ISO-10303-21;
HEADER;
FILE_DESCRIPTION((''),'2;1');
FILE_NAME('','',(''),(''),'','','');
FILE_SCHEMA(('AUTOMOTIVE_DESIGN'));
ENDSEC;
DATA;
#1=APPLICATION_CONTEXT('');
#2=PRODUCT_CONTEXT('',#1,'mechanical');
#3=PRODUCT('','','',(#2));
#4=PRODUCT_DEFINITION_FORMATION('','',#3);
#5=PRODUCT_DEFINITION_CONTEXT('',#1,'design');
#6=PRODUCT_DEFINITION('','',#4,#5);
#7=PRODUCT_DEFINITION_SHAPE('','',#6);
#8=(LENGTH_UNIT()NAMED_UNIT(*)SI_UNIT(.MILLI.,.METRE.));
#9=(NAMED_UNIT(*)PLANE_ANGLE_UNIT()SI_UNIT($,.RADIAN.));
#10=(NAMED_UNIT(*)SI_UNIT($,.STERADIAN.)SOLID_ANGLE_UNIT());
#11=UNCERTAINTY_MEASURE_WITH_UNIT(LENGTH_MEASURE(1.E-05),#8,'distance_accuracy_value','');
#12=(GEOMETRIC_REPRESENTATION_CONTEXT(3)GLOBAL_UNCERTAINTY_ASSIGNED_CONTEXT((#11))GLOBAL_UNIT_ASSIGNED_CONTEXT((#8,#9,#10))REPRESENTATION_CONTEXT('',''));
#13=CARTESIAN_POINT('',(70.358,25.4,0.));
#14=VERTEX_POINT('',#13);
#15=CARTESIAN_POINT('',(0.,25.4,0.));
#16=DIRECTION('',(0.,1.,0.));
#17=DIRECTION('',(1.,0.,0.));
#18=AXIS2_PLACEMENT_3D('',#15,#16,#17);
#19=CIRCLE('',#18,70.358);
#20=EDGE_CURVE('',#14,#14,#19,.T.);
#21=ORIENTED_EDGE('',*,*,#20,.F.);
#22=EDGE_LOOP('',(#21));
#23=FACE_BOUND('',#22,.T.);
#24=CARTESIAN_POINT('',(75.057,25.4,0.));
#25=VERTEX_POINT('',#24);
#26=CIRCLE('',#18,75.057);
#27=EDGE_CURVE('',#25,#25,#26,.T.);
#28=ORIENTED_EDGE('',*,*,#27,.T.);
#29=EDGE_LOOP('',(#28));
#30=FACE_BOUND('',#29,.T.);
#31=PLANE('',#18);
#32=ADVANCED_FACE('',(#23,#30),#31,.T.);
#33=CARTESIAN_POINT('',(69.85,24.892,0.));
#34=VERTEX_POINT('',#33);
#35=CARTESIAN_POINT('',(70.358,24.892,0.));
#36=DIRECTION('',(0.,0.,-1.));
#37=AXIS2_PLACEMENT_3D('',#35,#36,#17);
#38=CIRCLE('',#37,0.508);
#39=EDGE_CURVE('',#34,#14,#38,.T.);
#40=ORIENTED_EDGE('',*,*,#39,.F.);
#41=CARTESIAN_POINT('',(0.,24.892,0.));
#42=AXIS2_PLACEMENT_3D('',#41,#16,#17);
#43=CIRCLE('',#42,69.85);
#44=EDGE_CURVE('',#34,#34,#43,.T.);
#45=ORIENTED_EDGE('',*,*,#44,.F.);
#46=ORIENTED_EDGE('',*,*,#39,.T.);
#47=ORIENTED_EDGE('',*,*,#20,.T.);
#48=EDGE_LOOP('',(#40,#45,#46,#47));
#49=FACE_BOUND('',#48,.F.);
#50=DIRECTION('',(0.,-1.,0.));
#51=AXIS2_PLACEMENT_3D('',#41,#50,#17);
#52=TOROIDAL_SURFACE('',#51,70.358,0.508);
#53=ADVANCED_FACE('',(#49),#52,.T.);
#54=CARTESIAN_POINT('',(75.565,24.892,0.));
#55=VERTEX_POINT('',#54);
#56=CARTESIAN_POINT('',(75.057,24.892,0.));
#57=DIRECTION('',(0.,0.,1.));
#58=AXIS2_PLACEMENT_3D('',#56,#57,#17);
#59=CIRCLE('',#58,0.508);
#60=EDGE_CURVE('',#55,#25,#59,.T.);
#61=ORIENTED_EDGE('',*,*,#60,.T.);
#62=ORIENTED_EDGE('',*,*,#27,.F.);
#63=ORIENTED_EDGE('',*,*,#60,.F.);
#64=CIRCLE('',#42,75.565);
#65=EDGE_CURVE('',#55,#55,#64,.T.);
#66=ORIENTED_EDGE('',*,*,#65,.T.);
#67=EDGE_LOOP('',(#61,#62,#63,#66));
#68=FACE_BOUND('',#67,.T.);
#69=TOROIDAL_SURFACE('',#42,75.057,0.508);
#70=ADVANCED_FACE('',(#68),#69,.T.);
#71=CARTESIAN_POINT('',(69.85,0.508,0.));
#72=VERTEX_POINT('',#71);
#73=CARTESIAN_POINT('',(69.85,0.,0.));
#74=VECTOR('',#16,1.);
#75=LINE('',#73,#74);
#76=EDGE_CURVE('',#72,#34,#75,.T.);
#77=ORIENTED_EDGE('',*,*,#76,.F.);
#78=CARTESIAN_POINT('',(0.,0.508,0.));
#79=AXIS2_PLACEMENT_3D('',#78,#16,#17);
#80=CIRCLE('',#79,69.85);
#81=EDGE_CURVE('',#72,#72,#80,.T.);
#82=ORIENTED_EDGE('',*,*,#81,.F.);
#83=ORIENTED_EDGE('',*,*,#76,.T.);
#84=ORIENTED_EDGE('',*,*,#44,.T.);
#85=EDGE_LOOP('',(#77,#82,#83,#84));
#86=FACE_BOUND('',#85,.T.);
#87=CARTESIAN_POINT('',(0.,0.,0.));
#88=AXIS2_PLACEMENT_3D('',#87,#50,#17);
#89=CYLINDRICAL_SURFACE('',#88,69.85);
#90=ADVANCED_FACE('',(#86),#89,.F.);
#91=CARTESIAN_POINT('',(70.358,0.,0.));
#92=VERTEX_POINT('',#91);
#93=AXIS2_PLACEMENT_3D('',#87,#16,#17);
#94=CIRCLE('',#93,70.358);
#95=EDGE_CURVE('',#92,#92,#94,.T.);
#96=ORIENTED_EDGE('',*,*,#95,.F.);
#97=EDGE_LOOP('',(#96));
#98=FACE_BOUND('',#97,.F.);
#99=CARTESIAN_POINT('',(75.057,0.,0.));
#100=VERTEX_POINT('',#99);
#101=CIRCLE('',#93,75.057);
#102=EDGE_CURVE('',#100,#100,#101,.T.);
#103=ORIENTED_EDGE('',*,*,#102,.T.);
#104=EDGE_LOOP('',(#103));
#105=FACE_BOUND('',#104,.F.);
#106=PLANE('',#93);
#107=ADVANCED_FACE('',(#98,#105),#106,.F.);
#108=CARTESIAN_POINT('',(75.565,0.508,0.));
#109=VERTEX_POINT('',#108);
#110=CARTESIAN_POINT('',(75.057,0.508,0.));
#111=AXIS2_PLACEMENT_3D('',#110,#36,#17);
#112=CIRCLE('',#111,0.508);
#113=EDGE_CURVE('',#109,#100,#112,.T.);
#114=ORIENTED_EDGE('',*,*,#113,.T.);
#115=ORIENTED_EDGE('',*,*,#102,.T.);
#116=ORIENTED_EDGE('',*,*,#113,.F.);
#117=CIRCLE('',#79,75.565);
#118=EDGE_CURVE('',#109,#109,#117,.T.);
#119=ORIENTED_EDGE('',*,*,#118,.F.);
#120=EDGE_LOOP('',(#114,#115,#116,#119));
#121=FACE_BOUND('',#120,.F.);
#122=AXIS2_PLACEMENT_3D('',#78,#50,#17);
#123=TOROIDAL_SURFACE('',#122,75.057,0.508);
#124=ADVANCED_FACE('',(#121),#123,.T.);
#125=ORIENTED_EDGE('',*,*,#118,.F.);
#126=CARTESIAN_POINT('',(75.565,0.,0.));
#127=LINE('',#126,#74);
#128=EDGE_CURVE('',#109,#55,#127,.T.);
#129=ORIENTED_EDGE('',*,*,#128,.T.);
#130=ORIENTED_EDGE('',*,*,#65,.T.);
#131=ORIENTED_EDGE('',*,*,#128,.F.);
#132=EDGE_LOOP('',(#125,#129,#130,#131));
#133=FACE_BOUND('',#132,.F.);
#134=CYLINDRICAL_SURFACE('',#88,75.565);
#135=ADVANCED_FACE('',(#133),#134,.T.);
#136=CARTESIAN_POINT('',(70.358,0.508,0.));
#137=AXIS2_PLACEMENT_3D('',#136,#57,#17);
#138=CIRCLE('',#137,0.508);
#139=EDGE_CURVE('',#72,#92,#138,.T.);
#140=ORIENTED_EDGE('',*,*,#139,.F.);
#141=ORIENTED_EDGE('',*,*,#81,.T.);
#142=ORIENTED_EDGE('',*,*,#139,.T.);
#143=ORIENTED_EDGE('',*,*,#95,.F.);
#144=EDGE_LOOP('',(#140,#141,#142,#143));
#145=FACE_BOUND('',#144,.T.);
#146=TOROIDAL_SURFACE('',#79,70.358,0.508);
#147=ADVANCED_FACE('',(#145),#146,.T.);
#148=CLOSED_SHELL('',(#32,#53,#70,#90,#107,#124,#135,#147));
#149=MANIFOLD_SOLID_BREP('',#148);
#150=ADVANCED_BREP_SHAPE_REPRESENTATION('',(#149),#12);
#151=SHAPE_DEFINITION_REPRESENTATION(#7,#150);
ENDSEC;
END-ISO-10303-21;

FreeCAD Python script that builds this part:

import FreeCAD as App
import Part
import Sketcher

V = App.Vector
Q = App.Units.Quantity


def edges_at(feature, points):
    """Names of the edges that pass closest to the given points."""
    edges = feature.Shape.Edges
    near = lambda p: min(range(len(edges)), key=lambda i: edges[i].distToShape(Part.Vertex(*p))[0])
    return sorted({f"Edge{near(p) + 1}" for p in points})

doc = App.newDocument("Part")
params = doc.addObject("Spreadsheet::Sheet", "Params")
for row, (alias, value) in enumerate([
    ("sketch1_diameter", "5.5 in"),
    ("sketch1_diameter2", "5.95 in"),
    ("pad1_length", "1 in"),
    ("fillet_radius", "0.02 in"),
], start=1):
    params.set(f"A{row}", alias)
    params.set(f"B{row}", "=" + value)
    params.setAlias(f"B{row}", alias)

body = doc.addObject("PartDesign::Body", "Body")

# Sketch on XZ plane
sketch1 = body.newObject("Sketcher::SketchObject", "Sketch")
sketch1.AttachmentSupport = (doc.getObject("XZ_Plane"), [""])
sketch1.MapMode = "FlatFace"
sketch1.addGeometry(Part.Circle(V(0, 0, 0), V(0, 0, 1), 76), False)
sketch1.addGeometry(Part.Circle(V(0, 0, 0), V(0, 0, 1), 70), False)
sketch1.addConstraint(Sketcher.Constraint("Coincident", 0, 3, -1, 1))
sketch1.addConstraint(Sketcher.Constraint("Coincident", 1, 3, -1, 1))
sketch1.addConstraint(Sketcher.Constraint("Diameter", 1, Q("5.5 in")))
sketch1.addConstraint(Sketcher.Constraint("Diameter", 0, Q("5.95 in")))
sketch1.setExpression("Constraints[2]", "Params.sketch1_diameter")
sketch1.setExpression("Constraints[3]", "Params.sketch1_diameter2")
pad1 = body.newObject("PartDesign::Pad", "Pad")
pad1.Profile = sketch1
pad1.setExpression("Length", "Params.pad1_length")
pad1.Reversed = True
doc.recompute()

fillet = body.newObject("PartDesign::Fillet", "Fillet")
fillet.Base = (pad1, edges_at(pad1, [
    (-75.565, 0, 0),
    (-75.565, 25.4, 0),
    (-69.85, 0, 0),
    (-69.85, 25.4, 0),
]))
fillet.setExpression("Radius", "Params.fillet_radius")

doc.recompute()
